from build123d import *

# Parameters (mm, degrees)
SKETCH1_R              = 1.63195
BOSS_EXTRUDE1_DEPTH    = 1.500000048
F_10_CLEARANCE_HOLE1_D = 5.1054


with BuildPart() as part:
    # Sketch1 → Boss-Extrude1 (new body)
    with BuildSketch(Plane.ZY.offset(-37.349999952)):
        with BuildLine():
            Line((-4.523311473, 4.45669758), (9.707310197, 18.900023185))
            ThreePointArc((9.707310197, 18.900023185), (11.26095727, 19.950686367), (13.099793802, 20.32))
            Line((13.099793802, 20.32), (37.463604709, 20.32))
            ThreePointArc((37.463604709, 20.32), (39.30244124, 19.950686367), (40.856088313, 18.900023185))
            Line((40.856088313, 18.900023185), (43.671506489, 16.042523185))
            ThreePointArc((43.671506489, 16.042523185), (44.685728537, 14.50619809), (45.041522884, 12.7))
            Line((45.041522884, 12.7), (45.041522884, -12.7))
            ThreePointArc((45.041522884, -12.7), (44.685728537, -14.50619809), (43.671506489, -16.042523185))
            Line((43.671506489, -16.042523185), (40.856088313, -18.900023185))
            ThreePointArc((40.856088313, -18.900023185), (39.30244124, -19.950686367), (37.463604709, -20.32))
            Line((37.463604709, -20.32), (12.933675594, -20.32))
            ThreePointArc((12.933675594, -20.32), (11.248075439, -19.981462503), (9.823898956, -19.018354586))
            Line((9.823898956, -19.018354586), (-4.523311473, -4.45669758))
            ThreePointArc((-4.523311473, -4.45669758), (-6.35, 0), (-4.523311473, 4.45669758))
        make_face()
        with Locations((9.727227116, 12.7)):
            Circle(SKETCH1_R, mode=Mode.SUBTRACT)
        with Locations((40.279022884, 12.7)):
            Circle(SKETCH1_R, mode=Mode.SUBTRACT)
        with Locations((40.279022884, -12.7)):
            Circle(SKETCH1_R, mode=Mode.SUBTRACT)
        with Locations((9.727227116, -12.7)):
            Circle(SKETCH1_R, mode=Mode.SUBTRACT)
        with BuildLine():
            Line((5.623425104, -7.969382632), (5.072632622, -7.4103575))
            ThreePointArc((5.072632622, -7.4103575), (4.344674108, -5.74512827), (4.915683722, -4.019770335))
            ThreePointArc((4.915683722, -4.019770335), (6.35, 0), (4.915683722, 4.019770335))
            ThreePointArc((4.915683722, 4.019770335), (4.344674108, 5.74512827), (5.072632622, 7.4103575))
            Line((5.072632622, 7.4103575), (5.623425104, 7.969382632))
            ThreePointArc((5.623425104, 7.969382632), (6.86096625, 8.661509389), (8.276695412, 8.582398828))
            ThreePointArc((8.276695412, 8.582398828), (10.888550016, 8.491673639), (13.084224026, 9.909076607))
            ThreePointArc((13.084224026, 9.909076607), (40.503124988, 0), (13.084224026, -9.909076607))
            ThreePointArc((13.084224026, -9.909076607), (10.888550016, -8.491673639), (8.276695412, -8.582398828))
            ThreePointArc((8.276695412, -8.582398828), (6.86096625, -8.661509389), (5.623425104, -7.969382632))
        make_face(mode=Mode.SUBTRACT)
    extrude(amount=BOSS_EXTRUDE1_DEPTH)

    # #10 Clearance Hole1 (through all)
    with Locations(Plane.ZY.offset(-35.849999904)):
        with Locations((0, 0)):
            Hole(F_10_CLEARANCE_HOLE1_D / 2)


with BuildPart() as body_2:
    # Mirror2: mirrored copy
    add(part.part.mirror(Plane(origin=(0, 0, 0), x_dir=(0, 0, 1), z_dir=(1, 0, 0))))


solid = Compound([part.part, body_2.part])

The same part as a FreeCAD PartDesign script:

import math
import FreeCAD as App
import Part
import Sketcher
Q = App.Units.Quantity

doc = App.newDocument("Part")
params = doc.addObject("Spreadsheet::Sheet", "Params")
for row, (alias, value) in enumerate([
    ("sketch1_radius", "0.1 in"),
    ("sketch1_width", "1 in"),
    ("sketch1_radius2", "0.25 in"),
    ("sketch1_radius3", "0.171875 in"),
    ("sketch1_radius4", "0.1875 in"),
    ("pad1_length", "1.5 mm"),
    ("sketch2_diameter", "0.201 in"),
    ("hole_diameter", "0.201 in"),
], start=1):
    params.set(f"A{row}", alias)
    params.set(f"B{row}", "=" + value)
    params.setAlias(f"B{row}", alias)

body = doc.addObject("PartDesign::Body", "Body")

# Sketch on YZ plane
sketch1 = body.newObject("Sketcher::SketchObject", "Sketch")
sketch1.AttachmentSupport = (doc.getObject("YZ_Plane"), [""])
sketch1.MapMode = "FlatFace"
sketch1.AttachmentOffset = App.Placement(App.Vector(0, 0, 37.35), App.Rotation())
sketch1.addGeometry([
    Part.LineSegment(App.Vector(18.9, 9.7, 0), App.Vector(4.5, -4.5, 0)),  # 0
    Part.ArcOfCircle(Part.Circle(App.Vector(0, 0, 0), App.Vector(0, 0, 1), 6.3), math.radians(-135), math.radians(-45)),  # 1
    Part.LineSegment(App.Vector(-4.5, -4.5, 0), App.Vector(-19, 9.8, 0)),  # 2
    Part.ArcOfCircle(Part.Circle(App.Vector(-16, 12.9, 0), App.Vector(0, 0, 1), 4.4), math.radians(-180), math.radians(-135)),  # 3
    Part.LineSegment(App.Vector(-20.3, 12.9, 0), App.Vector(-20.3, 37.5, 0)),  # 4
    Part.ArcOfCircle(Part.Circle(App.Vector(-15.6, 37.5, 0), App.Vector(0, 0, 1), 4.8), math.radians(135), math.radians(180)),  # 5
    Part.LineSegment(App.Vector(-18.9, 40.9, 0), App.Vector(-16, 43.7, 0)),  # 6
    Part.ArcOfCircle(Part.Circle(App.Vector(-12.7, 40.3, 0), App.Vector(0, 0, 1), 4.8), math.radians(90), math.radians(135)),  # 7
    Part.LineSegment(App.Vector(-12.7, 45, 0), App.Vector(12.7, 45, 0)),  # 8
    Part.ArcOfCircle(Part.Circle(App.Vector(12.7, 40.3, 0), App.Vector(0, 0, 1), 4.8), math.radians(45), math.radians(90)),  # 9
    Part.LineSegment(App.Vector(16, 43.7, 0), App.Vector(18.9, 40.9, 0)),  # 10
    Part.ArcOfCircle(Part.Circle(App.Vector(15.6, 37.5, 0), App.Vector(0, 0, 1), 4.8), math.radians(0), math.radians(45)),  # 11
    Part.LineSegment(App.Vector(20.3, 37.5, 0), App.Vector(20.3, 13.1, 0)),  # 12
    Part.ArcOfCircle(Part.Circle(App.Vector(15.6, 13.1, 0), App.Vector(0, 0, 1), 4.8), math.radians(-45), math.radians(0)),  # 13
    Part.Circle(App.Vector(-12.7, 40.3, 0), App.Vector(0, 0, 1), 1.6),  # 14
    Part.Circle(App.Vector(-12.7, 9.7, 0), App.Vector(0, 0, 1), 1.6),  # 15
    Part.Circle(App.Vector(12.7, 40.3, 0), App.Vector(0, 0, 1), 1.6),  # 16
    Part.LineSegment(App.Vector(-8, 5.6, 0), App.Vector(-7.4, 5.1, 0)),  # 17
    Part.ArcOfCircle(Part.Circle(App.Vector(-5.6, 6.9, 0), App.Vector(0, 0, 1), 2.5), math.radians(-135), math.radians(-51)),  # 18
    Part.ArcOfCircle(Part.Circle(App.Vector(0, 0, 0), App.Vector(0, 0, 1), 6.3), math.radians(51), math.radians(129)),  # 19
    Part.ArcOfCircle(Part.Circle(App.Vector(5.6, 6.9, 0), App.Vector(0, 0, 1), 2.5), math.radians(-129), math.radians(-45)),  # 20
    Part.LineSegment(App.Vector(7.4, 5.1, 0), App.Vector(8, 5.6, 0)),  # 21
    Part.ArcOfCircle(Part.Circle(App.Vector(6.2, 7.4, 0), App.Vector(0, 0, 1), 2.5), math.radians(-45), math.radians(19)),  # 22
    Part.ArcOfCircle(Part.Circle(App.Vector(12.7, 9.7, 0), App.Vector(0, 0, 1), 4.4), math.radians(130), math.radians(199)),  # 23
    Part.ArcOfCircle(Part.Circle(App.Vector(0, 25, 0), App.Vector(0, 0, 1), 15.5), math.radians(-50), math.radians(230)),  # 24
    Part.ArcOfCircle(Part.Circle(App.Vector(-12.7, 9.7, 0), App.Vector(0, 0, 1), 4.4), math.radians(-19), math.radians(50)),  # 25
    Part.ArcOfCircle(Part.Circle(App.Vector(-6.2, 7.4, 0), App.Vector(0, 0, 1), 2.5), math.radians(161), math.radians(225)),  # 26
    Part.Circle(App.Vector(12.7, 9.7, 0), App.Vector(0, 0, 1), 1.6),  # 27
], False)
sketch1.addConstraint([
    Sketcher.Constraint("Tangent", 0, 2, 1, 2),
    Sketcher.Constraint("Tangent", 1, 1, 2, 1),
    Sketcher.Constraint("Tangent", 2, 2, 3, 2),
    Sketcher.Constraint("Tangent", 3, 1, 4, 1),
    Sketcher.Constraint("Tangent", 4, 2, 5, 2),
    Sketcher.Constraint("Tangent", 5, 1, 6, 1),
    Sketcher.Constraint("Tangent", 6, 2, 7, 2),
    Sketcher.Constraint("Tangent", 7, 1, 8, 1),
    Sketcher.Constraint("Tangent", 8, 2, 9, 2),
    Sketcher.Constraint("Tangent", 9, 1, 10, 1),
    Sketcher.Constraint("Tangent", 10, 2, 11, 2),
    Sketcher.Constraint("Tangent", 11, 1, 12, 1),
    Sketcher.Constraint("Tangent", 12, 2, 13, 2),
    Sketcher.Constraint("Tangent", 13, 1, 0, 1),
    Sketcher.Constraint("Tangent", 17, 2, 18, 1),
    Sketcher.Constraint("Tangent", 18, 2, 19, 2),
    Sketcher.Constraint("Tangent", 19, 1, 20, 1),
    Sketcher.Constraint("Tangent", 20, 2, 21, 1),
    Sketcher.Constraint("Tangent", 21, 2, 22, 1),
    Sketcher.Constraint("Tangent", 22, 2, 23, 2),
    Sketcher.Constraint("Tangent", 23, 1, 24, 1),
    Sketcher.Constraint("Tangent", 24, 2, 25, 2),
    Sketcher.Constraint("Tangent", 25, 1, 26, 1),
    Sketcher.Constraint("Tangent", 26, 2, 17, 1),
    Sketcher.Constraint("Vertical", 4),
    Sketcher.Constraint("Horizontal", 8),
    Sketcher.Constraint("Vertical", 12),
    Sketcher.Constraint("Coincident", 1, 3, -1, 1),
    Sketcher.Constraint("Coincident", 19, 3, -1, 1),
    Sketcher.Constraint("Coincident", 14, 3, 7, 3),
    Sketcher.Constraint("Coincident", 16, 3, 9, 3),
    Sketcher.Constraint("Coincident", 25, 3, 15, 3),
    Sketcher.Constraint("Coincident", 27, 3, 23, 3),
    Sketcher.Constraint("Equal", 5, 7),
    Sketcher.Constraint("Equal", 7, 9),
    Sketcher.Constraint("Equal", 9, 11),
    Sketcher.Constraint("Equal", 11, 13),
    Sketcher.Constraint("Equal", 14, 15),
    Sketcher.Constraint("Equal", 15, 16),
    Sketcher.Constraint("Equal", 1, 19),
    Sketcher.Constraint("Equal", 18, 20),
    Sketcher.Constraint("Equal", 20, 22),
    Sketcher.Constraint("Equal", 3, 23),
    Sketcher.Constraint("Equal", 23, 25),
    Sketcher.Constraint("Equal", 22, 26),
    Sketcher.Constraint("Equal", 16, 27),
    Sketcher.Constraint("Symmetric", 5, 3, 11, 3, -2),
    Sketcher.Constraint("Symmetric", 15, 3, 23, 3, -2),
    Sketcher.Constraint("Symmetric", 17, 2, 20, 2, -2),
    Sketcher.Constraint("Parallel", 0, 6),
    Sketcher.Constraint("Parallel", 2, 10),
    Sketcher.Constraint("Parallel", 10, 17),
    Sketcher.Constraint("Parallel", 6, 21),
    Sketcher.Constraint("Vertical", 14, 3, 15, 3),
    Sketcher.Constraint("Radius", 18, Q("0.1 in")),
    Sketcher.Constraint("DistanceX", 8, 1, 8, 2, Q("1 in")),
    Sketcher.Constraint("Radius", 1, Q("0.25 in")),
    Sketcher.Constraint("Radius", 3, Q("0.171875 in")),
    Sketcher.Constraint("Radius", 5, Q("0.1875 in")),
    Sketcher.Constraint("Diameter", 14, Q("0.1285 in")),
    Sketcher.Constraint("DistanceX", 3, 1, -1, 1, Q("0.8 in")),
    Sketcher.Constraint("Radius", 24, 15.5),
    Sketcher.Constraint("DistanceY", -1, 1, 24, 3, Q("0.984375 in")),
    Sketcher.Constraint("DistanceY", -1, 1, 3, 3, Q("0.5091998 in")),
    Sketcher.Constraint("DistanceY", 4, 1, 4, 2, 24.529929),
    Sketcher.Constraint("DistanceX", -1, 1, 22, 2, 8.582399),
])
sketch1.setExpression("Constraints[54]", "Params.sketch1_radius")
sketch1.setExpression("Constraints[55]", "Params.sketch1_width")
sketch1.setExpression("Constraints[56]", "Params.sketch1_radius2")
sketch1.setExpression("Constraints[57]", "Params.sketch1_radius3")
sketch1.setExpression("Constraints[58]", "Params.sketch1_radius4")
pad1 = body.newObject("PartDesign::Pad", "Pad")
pad1.Profile = sketch1
pad1.setExpression("Length", "Params.pad1_length")
pad1.Reversed = True

# Sketch on YZ plane
sketch2 = body.newObject("Sketcher::SketchObject", "Sketch001")
sketch2.AttachmentSupport = (doc.getObject("YZ_Plane"), [""])
sketch2.MapMode = "FlatFace"
sketch2.AttachmentOffset = App.Placement(App.Vector(0, 0, 35.85), App.Rotation())
sketch2.addGeometry(Part.Circle(App.Vector(0, 0, 0), App.Vector(0, 0, 1), 2.6), False)
sketch2.addConstraint([
    Sketcher.Constraint("Coincident", 0, 3, -1, 1),
    Sketcher.Constraint("Diameter", 0, Q("0.201 in")),
])
sketch2.setExpression("Constraints[1]", "Params.sketch2_diameter")
doc.recompute()
hole = body.newObject("PartDesign::Hole", "Hole")
hole.Profile = sketch2
hole.ThreadType = "None"
hole.setExpression("Diameter", "Params.hole_diameter")
hole.DepthType = "ThroughAll"
hole.Reversed = True
body2 = doc.addObject("PartDesign::Body", "Body001")
doc.recompute()

mirroring = doc.addObject("Part::Mirroring", "Mirroring")
mirroring.Source = body
mirroring.Base = App.Vector(0, 0, 0)
mirroring.Normal = App.Vector(1, 0, 0)
body2.BaseFeature = mirroring
doc.recompute()
mirroring.Visibility = False

doc.recompute()
